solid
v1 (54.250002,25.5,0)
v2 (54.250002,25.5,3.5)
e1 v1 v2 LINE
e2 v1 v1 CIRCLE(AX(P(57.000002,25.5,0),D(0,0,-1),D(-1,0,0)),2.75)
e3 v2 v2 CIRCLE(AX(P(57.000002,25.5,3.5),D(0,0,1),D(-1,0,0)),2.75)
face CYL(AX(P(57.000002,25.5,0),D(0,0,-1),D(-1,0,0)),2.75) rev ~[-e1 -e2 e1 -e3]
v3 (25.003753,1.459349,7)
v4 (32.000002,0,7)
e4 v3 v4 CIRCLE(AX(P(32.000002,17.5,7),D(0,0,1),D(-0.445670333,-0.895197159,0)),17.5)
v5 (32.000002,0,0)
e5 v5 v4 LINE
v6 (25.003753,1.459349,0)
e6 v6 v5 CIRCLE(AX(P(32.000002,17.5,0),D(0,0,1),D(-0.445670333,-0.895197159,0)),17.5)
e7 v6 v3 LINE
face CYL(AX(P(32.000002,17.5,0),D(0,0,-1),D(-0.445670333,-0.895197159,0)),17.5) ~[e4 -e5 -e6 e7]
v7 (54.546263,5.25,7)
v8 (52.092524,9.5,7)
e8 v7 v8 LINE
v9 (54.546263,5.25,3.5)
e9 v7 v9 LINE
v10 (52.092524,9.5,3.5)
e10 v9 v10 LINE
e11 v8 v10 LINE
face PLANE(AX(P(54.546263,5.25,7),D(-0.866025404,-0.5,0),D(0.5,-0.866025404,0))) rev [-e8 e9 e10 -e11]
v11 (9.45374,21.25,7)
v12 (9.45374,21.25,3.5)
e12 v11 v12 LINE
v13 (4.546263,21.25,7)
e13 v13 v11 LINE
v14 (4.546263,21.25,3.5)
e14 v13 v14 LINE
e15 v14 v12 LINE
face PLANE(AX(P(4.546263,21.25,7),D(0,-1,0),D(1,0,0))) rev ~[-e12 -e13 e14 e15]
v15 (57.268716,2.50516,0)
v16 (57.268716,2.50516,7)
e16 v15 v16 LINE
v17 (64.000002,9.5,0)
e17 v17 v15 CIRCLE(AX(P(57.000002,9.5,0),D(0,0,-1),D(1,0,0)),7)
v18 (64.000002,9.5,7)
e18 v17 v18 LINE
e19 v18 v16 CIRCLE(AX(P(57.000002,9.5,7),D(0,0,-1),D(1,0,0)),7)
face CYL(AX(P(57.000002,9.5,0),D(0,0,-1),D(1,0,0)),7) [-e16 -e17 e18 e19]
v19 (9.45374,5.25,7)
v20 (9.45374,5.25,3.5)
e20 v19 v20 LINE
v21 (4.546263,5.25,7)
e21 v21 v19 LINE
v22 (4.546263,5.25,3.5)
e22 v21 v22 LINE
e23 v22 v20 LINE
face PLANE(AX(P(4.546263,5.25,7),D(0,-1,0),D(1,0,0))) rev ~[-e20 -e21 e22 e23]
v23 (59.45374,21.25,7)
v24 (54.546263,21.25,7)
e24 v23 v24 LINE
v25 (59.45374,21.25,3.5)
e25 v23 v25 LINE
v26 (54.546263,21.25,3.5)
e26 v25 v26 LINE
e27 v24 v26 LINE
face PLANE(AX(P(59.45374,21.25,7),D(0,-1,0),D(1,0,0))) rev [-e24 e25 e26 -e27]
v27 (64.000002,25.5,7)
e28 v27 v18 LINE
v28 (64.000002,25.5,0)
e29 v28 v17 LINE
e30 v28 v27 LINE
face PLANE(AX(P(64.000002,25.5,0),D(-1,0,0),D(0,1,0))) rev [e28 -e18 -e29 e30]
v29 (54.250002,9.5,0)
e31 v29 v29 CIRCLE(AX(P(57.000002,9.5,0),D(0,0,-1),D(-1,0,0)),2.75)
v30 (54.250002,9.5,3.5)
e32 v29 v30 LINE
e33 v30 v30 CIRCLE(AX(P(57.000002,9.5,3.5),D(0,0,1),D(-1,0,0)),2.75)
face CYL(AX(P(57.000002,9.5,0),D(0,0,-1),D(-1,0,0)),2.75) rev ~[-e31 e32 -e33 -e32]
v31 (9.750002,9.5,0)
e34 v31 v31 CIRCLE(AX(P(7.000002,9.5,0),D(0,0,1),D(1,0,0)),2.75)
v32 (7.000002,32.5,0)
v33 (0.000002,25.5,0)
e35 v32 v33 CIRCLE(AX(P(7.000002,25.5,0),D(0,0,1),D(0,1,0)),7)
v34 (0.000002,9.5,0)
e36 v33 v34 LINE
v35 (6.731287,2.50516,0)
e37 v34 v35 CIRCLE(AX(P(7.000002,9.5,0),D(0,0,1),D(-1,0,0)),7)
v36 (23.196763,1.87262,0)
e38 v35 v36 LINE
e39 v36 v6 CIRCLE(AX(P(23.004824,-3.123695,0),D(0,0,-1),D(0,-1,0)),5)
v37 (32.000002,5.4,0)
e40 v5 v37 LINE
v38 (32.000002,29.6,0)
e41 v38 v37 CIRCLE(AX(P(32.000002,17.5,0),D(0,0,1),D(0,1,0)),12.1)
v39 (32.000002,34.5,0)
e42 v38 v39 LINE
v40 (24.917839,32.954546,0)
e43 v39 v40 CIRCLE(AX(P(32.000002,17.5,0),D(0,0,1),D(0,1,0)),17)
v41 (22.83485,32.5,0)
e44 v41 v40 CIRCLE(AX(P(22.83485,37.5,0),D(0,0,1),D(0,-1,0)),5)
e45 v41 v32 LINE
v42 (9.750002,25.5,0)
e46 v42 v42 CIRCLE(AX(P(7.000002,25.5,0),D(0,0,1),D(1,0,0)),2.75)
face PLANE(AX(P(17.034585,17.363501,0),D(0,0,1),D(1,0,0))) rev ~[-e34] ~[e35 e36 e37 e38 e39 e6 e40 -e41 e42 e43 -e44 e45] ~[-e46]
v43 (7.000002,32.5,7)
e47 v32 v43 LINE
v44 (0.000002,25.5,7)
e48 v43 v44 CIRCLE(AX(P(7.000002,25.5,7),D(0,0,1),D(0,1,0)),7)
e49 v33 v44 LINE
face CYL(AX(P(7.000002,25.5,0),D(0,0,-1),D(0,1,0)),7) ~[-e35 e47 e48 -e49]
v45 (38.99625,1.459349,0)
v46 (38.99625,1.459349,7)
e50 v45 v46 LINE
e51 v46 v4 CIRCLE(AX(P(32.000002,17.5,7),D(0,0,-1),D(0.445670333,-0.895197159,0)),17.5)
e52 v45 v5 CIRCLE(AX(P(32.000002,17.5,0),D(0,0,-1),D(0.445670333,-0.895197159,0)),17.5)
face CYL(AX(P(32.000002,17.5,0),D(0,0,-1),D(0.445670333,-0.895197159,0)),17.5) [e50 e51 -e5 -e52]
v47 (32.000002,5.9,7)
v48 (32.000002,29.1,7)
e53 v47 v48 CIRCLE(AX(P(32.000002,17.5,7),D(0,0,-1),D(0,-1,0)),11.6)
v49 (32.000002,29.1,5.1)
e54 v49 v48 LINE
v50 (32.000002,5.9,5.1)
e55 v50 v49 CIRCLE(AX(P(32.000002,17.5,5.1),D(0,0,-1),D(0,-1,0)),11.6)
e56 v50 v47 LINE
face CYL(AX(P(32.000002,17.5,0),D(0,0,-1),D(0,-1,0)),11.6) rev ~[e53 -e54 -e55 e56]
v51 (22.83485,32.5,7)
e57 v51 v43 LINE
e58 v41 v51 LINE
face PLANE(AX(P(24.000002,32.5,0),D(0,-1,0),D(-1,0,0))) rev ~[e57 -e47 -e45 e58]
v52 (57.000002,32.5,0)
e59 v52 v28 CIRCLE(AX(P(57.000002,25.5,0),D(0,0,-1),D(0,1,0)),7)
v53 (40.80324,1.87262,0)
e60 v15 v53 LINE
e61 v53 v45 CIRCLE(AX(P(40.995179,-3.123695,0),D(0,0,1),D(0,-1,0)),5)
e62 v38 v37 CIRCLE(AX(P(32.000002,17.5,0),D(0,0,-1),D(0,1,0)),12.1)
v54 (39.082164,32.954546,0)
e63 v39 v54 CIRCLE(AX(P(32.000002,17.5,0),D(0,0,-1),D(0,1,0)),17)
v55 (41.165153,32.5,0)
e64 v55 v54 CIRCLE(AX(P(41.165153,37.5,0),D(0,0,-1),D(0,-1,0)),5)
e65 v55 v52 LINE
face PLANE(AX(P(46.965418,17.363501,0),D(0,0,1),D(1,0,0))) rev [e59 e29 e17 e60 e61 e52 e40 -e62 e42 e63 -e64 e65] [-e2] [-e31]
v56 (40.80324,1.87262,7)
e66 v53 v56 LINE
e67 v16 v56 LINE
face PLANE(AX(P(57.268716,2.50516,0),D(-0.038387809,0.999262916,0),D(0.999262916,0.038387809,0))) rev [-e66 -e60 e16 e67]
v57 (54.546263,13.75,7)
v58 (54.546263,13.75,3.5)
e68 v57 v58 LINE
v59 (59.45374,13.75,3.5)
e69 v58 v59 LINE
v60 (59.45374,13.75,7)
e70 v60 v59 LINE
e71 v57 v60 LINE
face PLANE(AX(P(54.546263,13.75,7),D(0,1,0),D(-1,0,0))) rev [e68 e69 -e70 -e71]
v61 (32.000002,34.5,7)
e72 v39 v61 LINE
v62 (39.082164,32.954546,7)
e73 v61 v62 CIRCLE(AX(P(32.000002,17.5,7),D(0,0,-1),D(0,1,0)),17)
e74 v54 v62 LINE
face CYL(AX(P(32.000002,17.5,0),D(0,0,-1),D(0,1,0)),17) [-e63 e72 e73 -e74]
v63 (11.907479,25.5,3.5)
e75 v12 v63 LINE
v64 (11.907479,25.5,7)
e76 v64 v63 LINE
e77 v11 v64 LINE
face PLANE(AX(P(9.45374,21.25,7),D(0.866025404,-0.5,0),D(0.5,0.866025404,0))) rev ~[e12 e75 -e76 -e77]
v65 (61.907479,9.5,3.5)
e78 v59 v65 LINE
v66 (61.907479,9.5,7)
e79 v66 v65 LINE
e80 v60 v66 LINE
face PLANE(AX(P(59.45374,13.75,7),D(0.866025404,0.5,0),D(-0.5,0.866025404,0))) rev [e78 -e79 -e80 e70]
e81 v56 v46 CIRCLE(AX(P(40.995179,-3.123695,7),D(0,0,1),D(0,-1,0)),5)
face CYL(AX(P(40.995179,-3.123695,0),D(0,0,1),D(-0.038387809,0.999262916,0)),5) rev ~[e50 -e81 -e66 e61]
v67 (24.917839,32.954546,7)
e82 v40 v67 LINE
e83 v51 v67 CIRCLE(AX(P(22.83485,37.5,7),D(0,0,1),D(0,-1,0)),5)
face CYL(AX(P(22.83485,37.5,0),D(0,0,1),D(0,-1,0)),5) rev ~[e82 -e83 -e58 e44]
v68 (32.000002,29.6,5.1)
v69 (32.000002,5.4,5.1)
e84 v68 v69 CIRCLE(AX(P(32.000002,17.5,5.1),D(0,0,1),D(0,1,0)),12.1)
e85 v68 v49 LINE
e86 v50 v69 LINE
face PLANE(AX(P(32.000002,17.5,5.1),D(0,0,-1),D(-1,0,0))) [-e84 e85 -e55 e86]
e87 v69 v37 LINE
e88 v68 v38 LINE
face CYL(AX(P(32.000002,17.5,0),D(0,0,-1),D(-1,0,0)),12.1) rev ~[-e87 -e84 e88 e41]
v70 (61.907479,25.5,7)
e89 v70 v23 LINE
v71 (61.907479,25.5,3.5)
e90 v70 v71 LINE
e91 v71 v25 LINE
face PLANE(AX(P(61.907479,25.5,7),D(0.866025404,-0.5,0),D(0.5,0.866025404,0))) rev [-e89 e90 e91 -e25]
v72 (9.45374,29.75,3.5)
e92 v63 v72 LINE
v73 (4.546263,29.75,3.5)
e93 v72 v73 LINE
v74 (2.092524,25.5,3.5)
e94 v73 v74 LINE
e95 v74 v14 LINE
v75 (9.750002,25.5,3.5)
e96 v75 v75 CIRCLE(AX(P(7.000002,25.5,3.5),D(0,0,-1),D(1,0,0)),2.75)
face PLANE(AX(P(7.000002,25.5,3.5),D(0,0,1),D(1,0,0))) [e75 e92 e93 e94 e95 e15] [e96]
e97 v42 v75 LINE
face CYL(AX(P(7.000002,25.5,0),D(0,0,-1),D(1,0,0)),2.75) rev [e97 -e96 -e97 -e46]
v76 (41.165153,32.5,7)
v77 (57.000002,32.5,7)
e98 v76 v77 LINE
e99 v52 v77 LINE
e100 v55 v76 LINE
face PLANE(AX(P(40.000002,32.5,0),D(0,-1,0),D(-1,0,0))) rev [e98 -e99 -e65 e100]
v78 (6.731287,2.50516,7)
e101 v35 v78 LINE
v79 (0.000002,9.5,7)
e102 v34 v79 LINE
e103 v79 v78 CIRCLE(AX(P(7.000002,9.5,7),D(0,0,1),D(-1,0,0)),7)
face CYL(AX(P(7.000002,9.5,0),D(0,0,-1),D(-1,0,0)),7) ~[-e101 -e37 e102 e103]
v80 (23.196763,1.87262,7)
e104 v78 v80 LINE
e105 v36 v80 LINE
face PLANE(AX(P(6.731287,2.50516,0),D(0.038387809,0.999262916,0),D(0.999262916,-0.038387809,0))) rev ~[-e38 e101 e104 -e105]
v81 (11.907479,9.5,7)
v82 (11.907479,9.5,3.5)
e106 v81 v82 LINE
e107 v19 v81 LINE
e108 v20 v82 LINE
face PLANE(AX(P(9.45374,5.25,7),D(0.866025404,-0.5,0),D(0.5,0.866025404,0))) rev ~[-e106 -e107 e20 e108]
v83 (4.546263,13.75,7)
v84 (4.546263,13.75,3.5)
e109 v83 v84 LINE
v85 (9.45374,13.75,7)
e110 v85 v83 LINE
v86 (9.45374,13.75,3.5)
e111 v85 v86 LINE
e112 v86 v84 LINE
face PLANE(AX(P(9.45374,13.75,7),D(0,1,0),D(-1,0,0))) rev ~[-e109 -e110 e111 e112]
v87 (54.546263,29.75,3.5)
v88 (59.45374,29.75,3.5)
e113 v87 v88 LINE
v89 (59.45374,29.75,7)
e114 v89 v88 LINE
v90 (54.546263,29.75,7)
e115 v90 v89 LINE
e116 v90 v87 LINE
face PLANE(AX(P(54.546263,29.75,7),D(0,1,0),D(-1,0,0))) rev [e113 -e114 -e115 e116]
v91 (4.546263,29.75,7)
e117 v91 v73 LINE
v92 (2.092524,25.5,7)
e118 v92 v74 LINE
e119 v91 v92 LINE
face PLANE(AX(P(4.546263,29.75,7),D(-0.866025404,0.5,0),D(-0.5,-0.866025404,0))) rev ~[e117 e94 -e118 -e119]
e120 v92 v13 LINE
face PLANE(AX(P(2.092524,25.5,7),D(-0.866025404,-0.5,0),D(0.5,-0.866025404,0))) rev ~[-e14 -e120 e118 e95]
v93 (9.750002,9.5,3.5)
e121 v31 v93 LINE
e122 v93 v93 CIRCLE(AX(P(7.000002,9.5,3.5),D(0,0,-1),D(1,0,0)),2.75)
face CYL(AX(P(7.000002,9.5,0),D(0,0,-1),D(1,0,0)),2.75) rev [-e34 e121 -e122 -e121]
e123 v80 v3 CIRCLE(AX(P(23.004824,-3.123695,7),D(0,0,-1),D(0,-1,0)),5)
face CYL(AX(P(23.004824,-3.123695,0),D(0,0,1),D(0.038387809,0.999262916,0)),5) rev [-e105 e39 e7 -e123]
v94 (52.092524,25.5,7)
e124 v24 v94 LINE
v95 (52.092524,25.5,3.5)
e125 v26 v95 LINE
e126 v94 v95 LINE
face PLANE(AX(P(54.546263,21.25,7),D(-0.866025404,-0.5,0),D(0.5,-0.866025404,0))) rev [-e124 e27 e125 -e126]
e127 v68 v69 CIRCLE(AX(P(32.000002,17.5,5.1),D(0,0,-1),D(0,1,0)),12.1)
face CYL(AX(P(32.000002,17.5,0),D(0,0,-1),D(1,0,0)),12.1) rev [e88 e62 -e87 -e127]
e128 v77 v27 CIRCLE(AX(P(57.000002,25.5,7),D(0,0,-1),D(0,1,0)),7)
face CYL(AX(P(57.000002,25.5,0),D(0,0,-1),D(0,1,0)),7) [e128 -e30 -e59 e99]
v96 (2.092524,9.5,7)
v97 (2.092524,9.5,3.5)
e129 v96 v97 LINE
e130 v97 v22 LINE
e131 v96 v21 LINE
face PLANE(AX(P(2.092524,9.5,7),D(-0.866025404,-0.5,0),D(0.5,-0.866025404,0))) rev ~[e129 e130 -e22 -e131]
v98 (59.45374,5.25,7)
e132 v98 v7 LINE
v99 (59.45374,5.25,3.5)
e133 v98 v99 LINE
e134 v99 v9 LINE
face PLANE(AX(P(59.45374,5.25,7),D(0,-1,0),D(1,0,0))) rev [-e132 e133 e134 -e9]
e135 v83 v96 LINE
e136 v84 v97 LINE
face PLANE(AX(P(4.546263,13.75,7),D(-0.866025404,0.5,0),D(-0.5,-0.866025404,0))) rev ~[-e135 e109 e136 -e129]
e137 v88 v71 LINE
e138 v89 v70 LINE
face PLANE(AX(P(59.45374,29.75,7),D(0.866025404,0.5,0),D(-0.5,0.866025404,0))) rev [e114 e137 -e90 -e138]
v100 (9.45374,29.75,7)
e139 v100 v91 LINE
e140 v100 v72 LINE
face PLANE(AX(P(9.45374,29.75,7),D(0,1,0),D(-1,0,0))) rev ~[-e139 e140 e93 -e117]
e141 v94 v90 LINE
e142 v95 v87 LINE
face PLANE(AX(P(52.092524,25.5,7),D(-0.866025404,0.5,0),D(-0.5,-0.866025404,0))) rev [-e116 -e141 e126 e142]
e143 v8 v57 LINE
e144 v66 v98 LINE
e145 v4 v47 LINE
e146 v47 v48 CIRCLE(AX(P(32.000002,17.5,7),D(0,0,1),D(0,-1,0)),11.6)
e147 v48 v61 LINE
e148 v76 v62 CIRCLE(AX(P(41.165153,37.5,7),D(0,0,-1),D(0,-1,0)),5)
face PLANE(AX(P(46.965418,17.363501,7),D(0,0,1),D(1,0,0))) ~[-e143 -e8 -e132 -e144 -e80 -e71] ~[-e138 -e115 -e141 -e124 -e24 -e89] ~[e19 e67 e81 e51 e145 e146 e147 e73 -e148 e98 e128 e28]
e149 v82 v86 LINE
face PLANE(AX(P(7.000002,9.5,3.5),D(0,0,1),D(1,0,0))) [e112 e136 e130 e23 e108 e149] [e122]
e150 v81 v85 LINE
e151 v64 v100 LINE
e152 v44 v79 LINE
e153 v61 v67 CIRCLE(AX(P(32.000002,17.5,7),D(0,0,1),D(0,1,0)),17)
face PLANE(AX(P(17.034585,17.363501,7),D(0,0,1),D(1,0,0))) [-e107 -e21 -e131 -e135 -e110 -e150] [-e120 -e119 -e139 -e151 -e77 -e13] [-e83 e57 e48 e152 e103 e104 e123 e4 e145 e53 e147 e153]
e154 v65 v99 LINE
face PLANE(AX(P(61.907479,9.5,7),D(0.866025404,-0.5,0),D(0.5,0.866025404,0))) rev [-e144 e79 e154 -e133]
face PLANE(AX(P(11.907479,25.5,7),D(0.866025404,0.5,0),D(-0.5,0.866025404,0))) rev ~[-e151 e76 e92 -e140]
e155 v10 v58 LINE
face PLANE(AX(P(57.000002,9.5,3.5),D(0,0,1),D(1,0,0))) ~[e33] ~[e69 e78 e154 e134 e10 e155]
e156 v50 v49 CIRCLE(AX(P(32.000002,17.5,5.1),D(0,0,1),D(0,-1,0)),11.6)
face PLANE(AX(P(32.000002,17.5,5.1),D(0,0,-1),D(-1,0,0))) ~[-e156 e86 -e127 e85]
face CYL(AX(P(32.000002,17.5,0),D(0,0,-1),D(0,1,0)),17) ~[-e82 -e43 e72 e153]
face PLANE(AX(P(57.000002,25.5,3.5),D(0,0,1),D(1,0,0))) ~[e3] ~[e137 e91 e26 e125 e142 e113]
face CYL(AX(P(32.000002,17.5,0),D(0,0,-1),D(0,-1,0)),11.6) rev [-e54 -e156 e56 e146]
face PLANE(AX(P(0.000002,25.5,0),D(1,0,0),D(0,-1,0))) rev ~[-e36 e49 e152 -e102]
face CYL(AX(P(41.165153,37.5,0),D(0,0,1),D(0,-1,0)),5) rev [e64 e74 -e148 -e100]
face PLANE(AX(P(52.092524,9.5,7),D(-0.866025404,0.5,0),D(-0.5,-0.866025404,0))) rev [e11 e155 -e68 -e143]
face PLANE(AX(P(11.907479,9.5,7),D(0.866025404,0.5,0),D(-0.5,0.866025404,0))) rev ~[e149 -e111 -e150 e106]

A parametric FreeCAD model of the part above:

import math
import FreeCAD as App
import Part
import Sketcher
from FreeCAD import Vector
Q = App.Units.Quantity


def edges_at(feature, points):
    """Names of the edges that pass closest to the given points."""
    edges = feature.Shape.Edges
    near = lambda p: min(range(len(edges)), key=lambda i: edges[i].distToShape(Part.Vertex(*p))[0])
    return sorted({f"Edge{near(p) + 1}" for p in points})

doc = App.newDocument("Part")
body = doc.addObject("PartDesign::Body", "Body")

sketch1 = body.newObject("Sketcher::SketchObject", "Sketch")
sketch1.AttachmentSupport = (doc.getObject("XY_Plane"), [""])
sketch1.MapMode = "FlatFace"
sketch1.addGeometry(Part.LineSegment(Vector(24, 32.5, 0), Vector(7, 32.5, 0)), False)
sketch1.addGeometry(Part.ArcOfCircle(Part.Circle(Vector(7, 25.5, 0), Vector(0, 0, 1), 7), math.radians(90), math.radians(180)), False)
sketch1.addGeometry(Part.LineSegment(Vector(0, 25.5, 0), Vector(0, 9.5, 0)), False)
sketch1.addGeometry(Part.ArcOfCircle(Part.Circle(Vector(7, 9.5, 0), Vector(0, 0, 1), 7), math.radians(180), math.radians(268)), False)
sketch1.addGeometry(Part.LineSegment(Vector(6.7, 2.5, 0), Vector(24.2, 1.8, 0)), False)
sketch1.addGeometry(Part.ArcOfCircle(Part.Circle(Vector(32, 17.5, 0), Vector(0, 0, 1), 17.5), math.radians(-116), math.radians(-90)), False)
sketch1.addGeometry(Part.LineSegment(Vector(32, 0, 0), Vector(32, 5.9, 0)), False)
sketch1.addGeometry(Part.ArcOfCircle(Part.Circle(Vector(32, 17.5, 0), Vector(0, 0, 1), 11.6), math.radians(90), math.radians(270)), False)
sketch1.addGeometry(Part.LineSegment(Vector(32, 29.1, 0), Vector(32, 34.5, 0)), False)
sketch1.addGeometry(Part.ArcOfCircle(Part.Circle(Vector(32, 17.5, 0), Vector(0, 0, 1), 17), math.radians(90), math.radians(118)), False)
sketch1.addGeometry(Part.Circle(Vector(7, 9.5, 0), Vector(0, 0, 1), 2.8), False)
sketch1.addGeometry(Part.Circle(Vector(7, 25.5, 0), Vector(0, 0, 1), 2.8), False)
sketch1.addConstraint(Sketcher.Constraint("Tangent", 0, 2, 1, 1))
sketch1.addConstraint(Sketcher.Constraint("Tangent", 1, 2, 2, 1))
sketch1.addConstraint(Sketcher.Constraint("Tangent", 2, 2, 3, 1))
sketch1.addConstraint(Sketcher.Constraint("Tangent", 3, 2, 4, 1))
sketch1.addConstraint(Sketcher.Constraint("Coincident", 4, 2, 5, 1))
sketch1.addConstraint(Sketcher.Constraint("Coincident", 5, 2, 6, 1))
sketch1.addConstraint(Sketcher.Constraint("Coincident", 6, 2, 7, 2))
sketch1.addConstraint(Sketcher.Constraint("Coincident", 7, 1, 8, 1))
sketch1.addConstraint(Sketcher.Constraint("Coincident", 8, 2, 9, 1))
sketch1.addConstraint(Sketcher.Constraint("Coincident", 9, 2, 0, 1))
sketch1.addConstraint(Sketcher.Constraint("Horizontal", 0))
sketch1.addConstraint(Sketcher.Constraint("Vertical", 2))
sketch1.addConstraint(Sketcher.Constraint("Vertical", 6))
sketch1.addConstraint(Sketcher.Constraint("Vertical", 8))
sketch1.addConstraint(Sketcher.Constraint("Coincident", 7, 3, 5, 3))
sketch1.addConstraint(Sketcher.Constraint("Coincident", 9, 3, 5, 3))
sketch1.addConstraint(Sketcher.Constraint("Coincident", 10, 3, 3, 3))
sketch1.addConstraint(Sketcher.Constraint("Coincident", 11, 3, 1, 3))
sketch1.addConstraint(Sketcher.Constraint("Equal", 1, 3))
sketch1.addConstraint(Sketcher.Constraint("Equal", 10, 11))
sketch1.addConstraint(Sketcher.Constraint("PointOnObject", 1, 2, -2))
sketch1.addConstraint(Sketcher.Constraint("PointOnObject", 5, 2, -1))
sketch1.addConstraint(Sketcher.Constraint("Vertical", 9, 3, 5, 2))
sketch1.addConstraint(Sketcher.Constraint("Vertical", 6, 2, 7, 1))
sketch1.addConstraint(Sketcher.Constraint("Radius", 1, 7.0))
sketch1.addConstraint(Sketcher.Constraint("Radius", 9, 17.0))
sketch1.addConstraint(Sketcher.Constraint("Diameter", 10, 5.5))
sketch1.addConstraint(Sketcher.Constraint("Radius", 5, 17.5))
sketch1.addConstraint(Sketcher.Constraint("Radius", 7, 11.6))
sketch1.addConstraint(Sketcher.Constraint("DistanceX", 0, 2, 0, 1, 17.0))
sketch1.addConstraint(Sketcher.Constraint("DistanceY", 2, 2, 2, 1, 16.0))
sketch1.addConstraint(Sketcher.Constraint("DistanceX", -1, 1, 5, 3, 32.000002))
sketch1.addConstraint(Sketcher.Constraint("Angle", 4, Q("-2.2 deg")))
pad1 = body.newObject("PartDesign::Pad", "Pad")
pad1.Profile = sketch1
pad1.Length = 7

sketch2 = body.newObject("Sketcher::SketchObject", "Sketch001")
sketch2.AttachmentSupport = (doc.getObject("XY_Plane"), [""])
sketch2.MapMode = "FlatFace"
sketch2.addGeometry(Part.Circle(Vector(32, 18, 0), Vector(0, 0, 1), 12), False)
sketch2.addConstraint(Sketcher.Constraint("Diameter", 0, 24.2))
sketch2.addConstraint(Sketcher.Constraint("DistanceX", -1, 1, 0, 3, 32.000002))
sketch2.addConstraint(Sketcher.Constraint("DistanceY", -1, 1, 0, 3, 17.5))
pocket1 = body.newObject("PartDesign::Pocket", "Pocket")
pocket1.Profile = sketch2
pocket1.Length = 5.1
pocket1.Reversed = True

sketch3 = body.newObject("Sketcher::SketchObject", "Sketch002")
sketch3.AttachmentSupport = (doc.getObject("XY_Plane"), [""])
sketch3.MapMode = "FlatFace"
sketch3.AttachmentOffset = App.Placement(Vector(0, 0, 7), App.Rotation())
sketch3.addGeometry(Part.LineSegment(Vector(4.5, 29.8, 0), Vector(2.1, 25.5, 0)), False)
sketch3.addGeometry(Part.LineSegment(Vector(2.1, 25.5, 0), Vector(4.5, 21.3, 0)), False)
sketch3.addGeometry(Part.LineSegment(Vector(4.5, 21.3, 0), Vector(9.5, 21.3, 0)), False)
sketch3.addGeometry(Part.LineSegment(Vector(9.5, 21.3, 0), Vector(11.9, 25.5, 0)), False)
sketch3.addGeometry(Part.LineSegment(Vector(11.9, 25.5, 0), Vector(9.5, 29.8, 0)), False)
sketch3.addGeometry(Part.LineSegment(Vector(9.5, 29.8, 0), Vector(4.5, 29.8, 0)), False)
sketch3.addGeometry(Part.LineSegment(Vector(4.5, 13.8, 0), Vector(2.1, 9.5, 0)), False)
sketch3.addGeometry(Part.LineSegment(Vector(2.1, 9.5, 0), Vector(4.5, 5.3, 0)), False)
sketch3.addGeometry(Part.LineSegment(Vector(4.5, 5.3, 0), Vector(9.5, 5.3, 0)), False)
sketch3.addGeometry(Part.LineSegment(Vector(9.5, 5.3, 0), Vector(11.9, 9.5, 0)), False)
sketch3.addGeometry(Part.LineSegment(Vector(11.9, 9.5, 0), Vector(9.5, 13.8, 0)), False)
sketch3.addGeometry(Part.LineSegment(Vector(9.5, 13.8, 0), Vector(4.5, 13.8, 0)), False)
sketch3.addConstraint(Sketcher.Constraint("Coincident", 0, 2, 1, 1))
sketch3.addConstraint(Sketcher.Constraint("Coincident", 1, 2, 2, 1))
sketch3.addConstraint(Sketcher.Constraint("Coincident", 2, 2, 3, 1))
sketch3.addConstraint(Sketcher.Constraint("Coincident", 3, 2, 4, 1))
sketch3.addConstraint(Sketcher.Constraint("Coincident", 4, 2, 5, 1))
sketch3.addConstraint(Sketcher.Constraint("Coincident", 5, 2, 0, 1))
sketch3.addConstraint(Sketcher.Constraint("Coincident", 6, 2, 7, 1))
sketch3.addConstraint(Sketcher.Constraint("Coincident", 7, 2, 8, 1))
sketch3.addConstraint(Sketcher.Constraint("Coincident", 8, 2, 9, 1))
sketch3.addConstraint(Sketcher.Constraint("Coincident", 9, 2, 10, 1))
sketch3.addConstraint(Sketcher.Constraint("Coincident", 10, 2, 11, 1))
sketch3.addConstraint(Sketcher.Constraint("Coincident", 11, 2, 6, 1))
sketch3.addConstraint(Sketcher.Constraint("Horizontal", 2))
sketch3.addConstraint(Sketcher.Constraint("Horizontal", 5))
sketch3.addConstraint(Sketcher.Constraint("Horizontal", 8))
sketch3.addConstraint(Sketcher.Constraint("Horizontal", 11))
sketch3.addConstraint(Sketcher.Constraint("Parallel", 0, 3))
sketch3.addConstraint(Sketcher.Constraint("Parallel", 1, 4))
sketch3.addConstraint(Sketcher.Constraint("Parallel", 3, 6))
sketch3.addConstraint(Sketcher.Constraint("Parallel", 4, 7))
sketch3.addConstraint(Sketcher.Constraint("Parallel", 6, 9))
sketch3.addConstraint(Sketcher.Constraint("Parallel", 7, 10))
sketch3.addConstraint(Sketcher.Constraint("Horizontal", 0, 2, 3, 2))
sketch3.addConstraint(Sketcher.Constraint("Horizontal", 6, 2, 9, 2))
sketch3.addConstraint(Sketcher.Constraint("Vertical", 2, 2, 4, 2))
sketch3.addConstraint(Sketcher.Constraint("Vertical", 1, 2, 5, 2))
sketch3.addConstraint(Sketcher.Constraint("Vertical", 0, 2, 6, 2))
sketch3.addConstraint(Sketcher.Constraint("Vertical", 5, 2, 7, 2))
sketch3.addConstraint(Sketcher.Constraint("Vertical", 4, 2, 8, 2))
sketch3.addConstraint(Sketcher.Constraint("Vertical", 8, 2, 10, 2))
sketch3.addConstraint(Sketcher.Constraint("Angle", 0, Q("-120 deg")))
sketch3.addConstraint(Sketcher.Constraint("DistanceY", 6, 2, 0, 2, 16.0))
sketch3.addConstraint(Sketcher.Constraint("DistanceY", -1, 1, 0, 2, 25.5))
sketch3.addConstraint(Sketcher.Constraint("DistanceY", 2, 2, 4, 2, 8.5))
sketch3.addConstraint(Sketcher.Constraint("DistanceX", 2, 1, 2, 2, 4.907477))
sketch3.addConstraint(Sketcher.Constraint("DistanceX", -1, 1, 2, 2, 9.45374))
pocket2 = body.newObject("PartDesign::Pocket", "Pocket001")
pocket2.Profile = sketch3
pocket2.Length = 3.5
doc.recompute()

fillet = body.newObject("PartDesign::Fillet", "Fillet")
fillet.Base = (pocket2, edges_at(pocket2, [(24, 32.5, 3.5), (24.201, 1.834, 3.5)]))
fillet.Radius = 5
body2 = doc.addObject("PartDesign::Body", "Body001")
doc.recompute()

body2.BaseFeature = body
doc.recompute()

mirroring = doc.addObject("Part::Mirroring", "Mirroring")
mirroring.Source = body
mirroring.Base = Vector(32.000002, 34.5, 7)
mirroring.Normal = Vector(-1, 0, 0)
body3 = doc.addObject("PartDesign::Body", "Body002")
body3.BaseFeature = mirroring
boolean = body2.newObject("PartDesign::Boolean", "Boolean")
boolean.Type = "Fuse"
boolean.addObjects([body3])
doc.recompute()
mirroring.Visibility = False

doc.recompute()
